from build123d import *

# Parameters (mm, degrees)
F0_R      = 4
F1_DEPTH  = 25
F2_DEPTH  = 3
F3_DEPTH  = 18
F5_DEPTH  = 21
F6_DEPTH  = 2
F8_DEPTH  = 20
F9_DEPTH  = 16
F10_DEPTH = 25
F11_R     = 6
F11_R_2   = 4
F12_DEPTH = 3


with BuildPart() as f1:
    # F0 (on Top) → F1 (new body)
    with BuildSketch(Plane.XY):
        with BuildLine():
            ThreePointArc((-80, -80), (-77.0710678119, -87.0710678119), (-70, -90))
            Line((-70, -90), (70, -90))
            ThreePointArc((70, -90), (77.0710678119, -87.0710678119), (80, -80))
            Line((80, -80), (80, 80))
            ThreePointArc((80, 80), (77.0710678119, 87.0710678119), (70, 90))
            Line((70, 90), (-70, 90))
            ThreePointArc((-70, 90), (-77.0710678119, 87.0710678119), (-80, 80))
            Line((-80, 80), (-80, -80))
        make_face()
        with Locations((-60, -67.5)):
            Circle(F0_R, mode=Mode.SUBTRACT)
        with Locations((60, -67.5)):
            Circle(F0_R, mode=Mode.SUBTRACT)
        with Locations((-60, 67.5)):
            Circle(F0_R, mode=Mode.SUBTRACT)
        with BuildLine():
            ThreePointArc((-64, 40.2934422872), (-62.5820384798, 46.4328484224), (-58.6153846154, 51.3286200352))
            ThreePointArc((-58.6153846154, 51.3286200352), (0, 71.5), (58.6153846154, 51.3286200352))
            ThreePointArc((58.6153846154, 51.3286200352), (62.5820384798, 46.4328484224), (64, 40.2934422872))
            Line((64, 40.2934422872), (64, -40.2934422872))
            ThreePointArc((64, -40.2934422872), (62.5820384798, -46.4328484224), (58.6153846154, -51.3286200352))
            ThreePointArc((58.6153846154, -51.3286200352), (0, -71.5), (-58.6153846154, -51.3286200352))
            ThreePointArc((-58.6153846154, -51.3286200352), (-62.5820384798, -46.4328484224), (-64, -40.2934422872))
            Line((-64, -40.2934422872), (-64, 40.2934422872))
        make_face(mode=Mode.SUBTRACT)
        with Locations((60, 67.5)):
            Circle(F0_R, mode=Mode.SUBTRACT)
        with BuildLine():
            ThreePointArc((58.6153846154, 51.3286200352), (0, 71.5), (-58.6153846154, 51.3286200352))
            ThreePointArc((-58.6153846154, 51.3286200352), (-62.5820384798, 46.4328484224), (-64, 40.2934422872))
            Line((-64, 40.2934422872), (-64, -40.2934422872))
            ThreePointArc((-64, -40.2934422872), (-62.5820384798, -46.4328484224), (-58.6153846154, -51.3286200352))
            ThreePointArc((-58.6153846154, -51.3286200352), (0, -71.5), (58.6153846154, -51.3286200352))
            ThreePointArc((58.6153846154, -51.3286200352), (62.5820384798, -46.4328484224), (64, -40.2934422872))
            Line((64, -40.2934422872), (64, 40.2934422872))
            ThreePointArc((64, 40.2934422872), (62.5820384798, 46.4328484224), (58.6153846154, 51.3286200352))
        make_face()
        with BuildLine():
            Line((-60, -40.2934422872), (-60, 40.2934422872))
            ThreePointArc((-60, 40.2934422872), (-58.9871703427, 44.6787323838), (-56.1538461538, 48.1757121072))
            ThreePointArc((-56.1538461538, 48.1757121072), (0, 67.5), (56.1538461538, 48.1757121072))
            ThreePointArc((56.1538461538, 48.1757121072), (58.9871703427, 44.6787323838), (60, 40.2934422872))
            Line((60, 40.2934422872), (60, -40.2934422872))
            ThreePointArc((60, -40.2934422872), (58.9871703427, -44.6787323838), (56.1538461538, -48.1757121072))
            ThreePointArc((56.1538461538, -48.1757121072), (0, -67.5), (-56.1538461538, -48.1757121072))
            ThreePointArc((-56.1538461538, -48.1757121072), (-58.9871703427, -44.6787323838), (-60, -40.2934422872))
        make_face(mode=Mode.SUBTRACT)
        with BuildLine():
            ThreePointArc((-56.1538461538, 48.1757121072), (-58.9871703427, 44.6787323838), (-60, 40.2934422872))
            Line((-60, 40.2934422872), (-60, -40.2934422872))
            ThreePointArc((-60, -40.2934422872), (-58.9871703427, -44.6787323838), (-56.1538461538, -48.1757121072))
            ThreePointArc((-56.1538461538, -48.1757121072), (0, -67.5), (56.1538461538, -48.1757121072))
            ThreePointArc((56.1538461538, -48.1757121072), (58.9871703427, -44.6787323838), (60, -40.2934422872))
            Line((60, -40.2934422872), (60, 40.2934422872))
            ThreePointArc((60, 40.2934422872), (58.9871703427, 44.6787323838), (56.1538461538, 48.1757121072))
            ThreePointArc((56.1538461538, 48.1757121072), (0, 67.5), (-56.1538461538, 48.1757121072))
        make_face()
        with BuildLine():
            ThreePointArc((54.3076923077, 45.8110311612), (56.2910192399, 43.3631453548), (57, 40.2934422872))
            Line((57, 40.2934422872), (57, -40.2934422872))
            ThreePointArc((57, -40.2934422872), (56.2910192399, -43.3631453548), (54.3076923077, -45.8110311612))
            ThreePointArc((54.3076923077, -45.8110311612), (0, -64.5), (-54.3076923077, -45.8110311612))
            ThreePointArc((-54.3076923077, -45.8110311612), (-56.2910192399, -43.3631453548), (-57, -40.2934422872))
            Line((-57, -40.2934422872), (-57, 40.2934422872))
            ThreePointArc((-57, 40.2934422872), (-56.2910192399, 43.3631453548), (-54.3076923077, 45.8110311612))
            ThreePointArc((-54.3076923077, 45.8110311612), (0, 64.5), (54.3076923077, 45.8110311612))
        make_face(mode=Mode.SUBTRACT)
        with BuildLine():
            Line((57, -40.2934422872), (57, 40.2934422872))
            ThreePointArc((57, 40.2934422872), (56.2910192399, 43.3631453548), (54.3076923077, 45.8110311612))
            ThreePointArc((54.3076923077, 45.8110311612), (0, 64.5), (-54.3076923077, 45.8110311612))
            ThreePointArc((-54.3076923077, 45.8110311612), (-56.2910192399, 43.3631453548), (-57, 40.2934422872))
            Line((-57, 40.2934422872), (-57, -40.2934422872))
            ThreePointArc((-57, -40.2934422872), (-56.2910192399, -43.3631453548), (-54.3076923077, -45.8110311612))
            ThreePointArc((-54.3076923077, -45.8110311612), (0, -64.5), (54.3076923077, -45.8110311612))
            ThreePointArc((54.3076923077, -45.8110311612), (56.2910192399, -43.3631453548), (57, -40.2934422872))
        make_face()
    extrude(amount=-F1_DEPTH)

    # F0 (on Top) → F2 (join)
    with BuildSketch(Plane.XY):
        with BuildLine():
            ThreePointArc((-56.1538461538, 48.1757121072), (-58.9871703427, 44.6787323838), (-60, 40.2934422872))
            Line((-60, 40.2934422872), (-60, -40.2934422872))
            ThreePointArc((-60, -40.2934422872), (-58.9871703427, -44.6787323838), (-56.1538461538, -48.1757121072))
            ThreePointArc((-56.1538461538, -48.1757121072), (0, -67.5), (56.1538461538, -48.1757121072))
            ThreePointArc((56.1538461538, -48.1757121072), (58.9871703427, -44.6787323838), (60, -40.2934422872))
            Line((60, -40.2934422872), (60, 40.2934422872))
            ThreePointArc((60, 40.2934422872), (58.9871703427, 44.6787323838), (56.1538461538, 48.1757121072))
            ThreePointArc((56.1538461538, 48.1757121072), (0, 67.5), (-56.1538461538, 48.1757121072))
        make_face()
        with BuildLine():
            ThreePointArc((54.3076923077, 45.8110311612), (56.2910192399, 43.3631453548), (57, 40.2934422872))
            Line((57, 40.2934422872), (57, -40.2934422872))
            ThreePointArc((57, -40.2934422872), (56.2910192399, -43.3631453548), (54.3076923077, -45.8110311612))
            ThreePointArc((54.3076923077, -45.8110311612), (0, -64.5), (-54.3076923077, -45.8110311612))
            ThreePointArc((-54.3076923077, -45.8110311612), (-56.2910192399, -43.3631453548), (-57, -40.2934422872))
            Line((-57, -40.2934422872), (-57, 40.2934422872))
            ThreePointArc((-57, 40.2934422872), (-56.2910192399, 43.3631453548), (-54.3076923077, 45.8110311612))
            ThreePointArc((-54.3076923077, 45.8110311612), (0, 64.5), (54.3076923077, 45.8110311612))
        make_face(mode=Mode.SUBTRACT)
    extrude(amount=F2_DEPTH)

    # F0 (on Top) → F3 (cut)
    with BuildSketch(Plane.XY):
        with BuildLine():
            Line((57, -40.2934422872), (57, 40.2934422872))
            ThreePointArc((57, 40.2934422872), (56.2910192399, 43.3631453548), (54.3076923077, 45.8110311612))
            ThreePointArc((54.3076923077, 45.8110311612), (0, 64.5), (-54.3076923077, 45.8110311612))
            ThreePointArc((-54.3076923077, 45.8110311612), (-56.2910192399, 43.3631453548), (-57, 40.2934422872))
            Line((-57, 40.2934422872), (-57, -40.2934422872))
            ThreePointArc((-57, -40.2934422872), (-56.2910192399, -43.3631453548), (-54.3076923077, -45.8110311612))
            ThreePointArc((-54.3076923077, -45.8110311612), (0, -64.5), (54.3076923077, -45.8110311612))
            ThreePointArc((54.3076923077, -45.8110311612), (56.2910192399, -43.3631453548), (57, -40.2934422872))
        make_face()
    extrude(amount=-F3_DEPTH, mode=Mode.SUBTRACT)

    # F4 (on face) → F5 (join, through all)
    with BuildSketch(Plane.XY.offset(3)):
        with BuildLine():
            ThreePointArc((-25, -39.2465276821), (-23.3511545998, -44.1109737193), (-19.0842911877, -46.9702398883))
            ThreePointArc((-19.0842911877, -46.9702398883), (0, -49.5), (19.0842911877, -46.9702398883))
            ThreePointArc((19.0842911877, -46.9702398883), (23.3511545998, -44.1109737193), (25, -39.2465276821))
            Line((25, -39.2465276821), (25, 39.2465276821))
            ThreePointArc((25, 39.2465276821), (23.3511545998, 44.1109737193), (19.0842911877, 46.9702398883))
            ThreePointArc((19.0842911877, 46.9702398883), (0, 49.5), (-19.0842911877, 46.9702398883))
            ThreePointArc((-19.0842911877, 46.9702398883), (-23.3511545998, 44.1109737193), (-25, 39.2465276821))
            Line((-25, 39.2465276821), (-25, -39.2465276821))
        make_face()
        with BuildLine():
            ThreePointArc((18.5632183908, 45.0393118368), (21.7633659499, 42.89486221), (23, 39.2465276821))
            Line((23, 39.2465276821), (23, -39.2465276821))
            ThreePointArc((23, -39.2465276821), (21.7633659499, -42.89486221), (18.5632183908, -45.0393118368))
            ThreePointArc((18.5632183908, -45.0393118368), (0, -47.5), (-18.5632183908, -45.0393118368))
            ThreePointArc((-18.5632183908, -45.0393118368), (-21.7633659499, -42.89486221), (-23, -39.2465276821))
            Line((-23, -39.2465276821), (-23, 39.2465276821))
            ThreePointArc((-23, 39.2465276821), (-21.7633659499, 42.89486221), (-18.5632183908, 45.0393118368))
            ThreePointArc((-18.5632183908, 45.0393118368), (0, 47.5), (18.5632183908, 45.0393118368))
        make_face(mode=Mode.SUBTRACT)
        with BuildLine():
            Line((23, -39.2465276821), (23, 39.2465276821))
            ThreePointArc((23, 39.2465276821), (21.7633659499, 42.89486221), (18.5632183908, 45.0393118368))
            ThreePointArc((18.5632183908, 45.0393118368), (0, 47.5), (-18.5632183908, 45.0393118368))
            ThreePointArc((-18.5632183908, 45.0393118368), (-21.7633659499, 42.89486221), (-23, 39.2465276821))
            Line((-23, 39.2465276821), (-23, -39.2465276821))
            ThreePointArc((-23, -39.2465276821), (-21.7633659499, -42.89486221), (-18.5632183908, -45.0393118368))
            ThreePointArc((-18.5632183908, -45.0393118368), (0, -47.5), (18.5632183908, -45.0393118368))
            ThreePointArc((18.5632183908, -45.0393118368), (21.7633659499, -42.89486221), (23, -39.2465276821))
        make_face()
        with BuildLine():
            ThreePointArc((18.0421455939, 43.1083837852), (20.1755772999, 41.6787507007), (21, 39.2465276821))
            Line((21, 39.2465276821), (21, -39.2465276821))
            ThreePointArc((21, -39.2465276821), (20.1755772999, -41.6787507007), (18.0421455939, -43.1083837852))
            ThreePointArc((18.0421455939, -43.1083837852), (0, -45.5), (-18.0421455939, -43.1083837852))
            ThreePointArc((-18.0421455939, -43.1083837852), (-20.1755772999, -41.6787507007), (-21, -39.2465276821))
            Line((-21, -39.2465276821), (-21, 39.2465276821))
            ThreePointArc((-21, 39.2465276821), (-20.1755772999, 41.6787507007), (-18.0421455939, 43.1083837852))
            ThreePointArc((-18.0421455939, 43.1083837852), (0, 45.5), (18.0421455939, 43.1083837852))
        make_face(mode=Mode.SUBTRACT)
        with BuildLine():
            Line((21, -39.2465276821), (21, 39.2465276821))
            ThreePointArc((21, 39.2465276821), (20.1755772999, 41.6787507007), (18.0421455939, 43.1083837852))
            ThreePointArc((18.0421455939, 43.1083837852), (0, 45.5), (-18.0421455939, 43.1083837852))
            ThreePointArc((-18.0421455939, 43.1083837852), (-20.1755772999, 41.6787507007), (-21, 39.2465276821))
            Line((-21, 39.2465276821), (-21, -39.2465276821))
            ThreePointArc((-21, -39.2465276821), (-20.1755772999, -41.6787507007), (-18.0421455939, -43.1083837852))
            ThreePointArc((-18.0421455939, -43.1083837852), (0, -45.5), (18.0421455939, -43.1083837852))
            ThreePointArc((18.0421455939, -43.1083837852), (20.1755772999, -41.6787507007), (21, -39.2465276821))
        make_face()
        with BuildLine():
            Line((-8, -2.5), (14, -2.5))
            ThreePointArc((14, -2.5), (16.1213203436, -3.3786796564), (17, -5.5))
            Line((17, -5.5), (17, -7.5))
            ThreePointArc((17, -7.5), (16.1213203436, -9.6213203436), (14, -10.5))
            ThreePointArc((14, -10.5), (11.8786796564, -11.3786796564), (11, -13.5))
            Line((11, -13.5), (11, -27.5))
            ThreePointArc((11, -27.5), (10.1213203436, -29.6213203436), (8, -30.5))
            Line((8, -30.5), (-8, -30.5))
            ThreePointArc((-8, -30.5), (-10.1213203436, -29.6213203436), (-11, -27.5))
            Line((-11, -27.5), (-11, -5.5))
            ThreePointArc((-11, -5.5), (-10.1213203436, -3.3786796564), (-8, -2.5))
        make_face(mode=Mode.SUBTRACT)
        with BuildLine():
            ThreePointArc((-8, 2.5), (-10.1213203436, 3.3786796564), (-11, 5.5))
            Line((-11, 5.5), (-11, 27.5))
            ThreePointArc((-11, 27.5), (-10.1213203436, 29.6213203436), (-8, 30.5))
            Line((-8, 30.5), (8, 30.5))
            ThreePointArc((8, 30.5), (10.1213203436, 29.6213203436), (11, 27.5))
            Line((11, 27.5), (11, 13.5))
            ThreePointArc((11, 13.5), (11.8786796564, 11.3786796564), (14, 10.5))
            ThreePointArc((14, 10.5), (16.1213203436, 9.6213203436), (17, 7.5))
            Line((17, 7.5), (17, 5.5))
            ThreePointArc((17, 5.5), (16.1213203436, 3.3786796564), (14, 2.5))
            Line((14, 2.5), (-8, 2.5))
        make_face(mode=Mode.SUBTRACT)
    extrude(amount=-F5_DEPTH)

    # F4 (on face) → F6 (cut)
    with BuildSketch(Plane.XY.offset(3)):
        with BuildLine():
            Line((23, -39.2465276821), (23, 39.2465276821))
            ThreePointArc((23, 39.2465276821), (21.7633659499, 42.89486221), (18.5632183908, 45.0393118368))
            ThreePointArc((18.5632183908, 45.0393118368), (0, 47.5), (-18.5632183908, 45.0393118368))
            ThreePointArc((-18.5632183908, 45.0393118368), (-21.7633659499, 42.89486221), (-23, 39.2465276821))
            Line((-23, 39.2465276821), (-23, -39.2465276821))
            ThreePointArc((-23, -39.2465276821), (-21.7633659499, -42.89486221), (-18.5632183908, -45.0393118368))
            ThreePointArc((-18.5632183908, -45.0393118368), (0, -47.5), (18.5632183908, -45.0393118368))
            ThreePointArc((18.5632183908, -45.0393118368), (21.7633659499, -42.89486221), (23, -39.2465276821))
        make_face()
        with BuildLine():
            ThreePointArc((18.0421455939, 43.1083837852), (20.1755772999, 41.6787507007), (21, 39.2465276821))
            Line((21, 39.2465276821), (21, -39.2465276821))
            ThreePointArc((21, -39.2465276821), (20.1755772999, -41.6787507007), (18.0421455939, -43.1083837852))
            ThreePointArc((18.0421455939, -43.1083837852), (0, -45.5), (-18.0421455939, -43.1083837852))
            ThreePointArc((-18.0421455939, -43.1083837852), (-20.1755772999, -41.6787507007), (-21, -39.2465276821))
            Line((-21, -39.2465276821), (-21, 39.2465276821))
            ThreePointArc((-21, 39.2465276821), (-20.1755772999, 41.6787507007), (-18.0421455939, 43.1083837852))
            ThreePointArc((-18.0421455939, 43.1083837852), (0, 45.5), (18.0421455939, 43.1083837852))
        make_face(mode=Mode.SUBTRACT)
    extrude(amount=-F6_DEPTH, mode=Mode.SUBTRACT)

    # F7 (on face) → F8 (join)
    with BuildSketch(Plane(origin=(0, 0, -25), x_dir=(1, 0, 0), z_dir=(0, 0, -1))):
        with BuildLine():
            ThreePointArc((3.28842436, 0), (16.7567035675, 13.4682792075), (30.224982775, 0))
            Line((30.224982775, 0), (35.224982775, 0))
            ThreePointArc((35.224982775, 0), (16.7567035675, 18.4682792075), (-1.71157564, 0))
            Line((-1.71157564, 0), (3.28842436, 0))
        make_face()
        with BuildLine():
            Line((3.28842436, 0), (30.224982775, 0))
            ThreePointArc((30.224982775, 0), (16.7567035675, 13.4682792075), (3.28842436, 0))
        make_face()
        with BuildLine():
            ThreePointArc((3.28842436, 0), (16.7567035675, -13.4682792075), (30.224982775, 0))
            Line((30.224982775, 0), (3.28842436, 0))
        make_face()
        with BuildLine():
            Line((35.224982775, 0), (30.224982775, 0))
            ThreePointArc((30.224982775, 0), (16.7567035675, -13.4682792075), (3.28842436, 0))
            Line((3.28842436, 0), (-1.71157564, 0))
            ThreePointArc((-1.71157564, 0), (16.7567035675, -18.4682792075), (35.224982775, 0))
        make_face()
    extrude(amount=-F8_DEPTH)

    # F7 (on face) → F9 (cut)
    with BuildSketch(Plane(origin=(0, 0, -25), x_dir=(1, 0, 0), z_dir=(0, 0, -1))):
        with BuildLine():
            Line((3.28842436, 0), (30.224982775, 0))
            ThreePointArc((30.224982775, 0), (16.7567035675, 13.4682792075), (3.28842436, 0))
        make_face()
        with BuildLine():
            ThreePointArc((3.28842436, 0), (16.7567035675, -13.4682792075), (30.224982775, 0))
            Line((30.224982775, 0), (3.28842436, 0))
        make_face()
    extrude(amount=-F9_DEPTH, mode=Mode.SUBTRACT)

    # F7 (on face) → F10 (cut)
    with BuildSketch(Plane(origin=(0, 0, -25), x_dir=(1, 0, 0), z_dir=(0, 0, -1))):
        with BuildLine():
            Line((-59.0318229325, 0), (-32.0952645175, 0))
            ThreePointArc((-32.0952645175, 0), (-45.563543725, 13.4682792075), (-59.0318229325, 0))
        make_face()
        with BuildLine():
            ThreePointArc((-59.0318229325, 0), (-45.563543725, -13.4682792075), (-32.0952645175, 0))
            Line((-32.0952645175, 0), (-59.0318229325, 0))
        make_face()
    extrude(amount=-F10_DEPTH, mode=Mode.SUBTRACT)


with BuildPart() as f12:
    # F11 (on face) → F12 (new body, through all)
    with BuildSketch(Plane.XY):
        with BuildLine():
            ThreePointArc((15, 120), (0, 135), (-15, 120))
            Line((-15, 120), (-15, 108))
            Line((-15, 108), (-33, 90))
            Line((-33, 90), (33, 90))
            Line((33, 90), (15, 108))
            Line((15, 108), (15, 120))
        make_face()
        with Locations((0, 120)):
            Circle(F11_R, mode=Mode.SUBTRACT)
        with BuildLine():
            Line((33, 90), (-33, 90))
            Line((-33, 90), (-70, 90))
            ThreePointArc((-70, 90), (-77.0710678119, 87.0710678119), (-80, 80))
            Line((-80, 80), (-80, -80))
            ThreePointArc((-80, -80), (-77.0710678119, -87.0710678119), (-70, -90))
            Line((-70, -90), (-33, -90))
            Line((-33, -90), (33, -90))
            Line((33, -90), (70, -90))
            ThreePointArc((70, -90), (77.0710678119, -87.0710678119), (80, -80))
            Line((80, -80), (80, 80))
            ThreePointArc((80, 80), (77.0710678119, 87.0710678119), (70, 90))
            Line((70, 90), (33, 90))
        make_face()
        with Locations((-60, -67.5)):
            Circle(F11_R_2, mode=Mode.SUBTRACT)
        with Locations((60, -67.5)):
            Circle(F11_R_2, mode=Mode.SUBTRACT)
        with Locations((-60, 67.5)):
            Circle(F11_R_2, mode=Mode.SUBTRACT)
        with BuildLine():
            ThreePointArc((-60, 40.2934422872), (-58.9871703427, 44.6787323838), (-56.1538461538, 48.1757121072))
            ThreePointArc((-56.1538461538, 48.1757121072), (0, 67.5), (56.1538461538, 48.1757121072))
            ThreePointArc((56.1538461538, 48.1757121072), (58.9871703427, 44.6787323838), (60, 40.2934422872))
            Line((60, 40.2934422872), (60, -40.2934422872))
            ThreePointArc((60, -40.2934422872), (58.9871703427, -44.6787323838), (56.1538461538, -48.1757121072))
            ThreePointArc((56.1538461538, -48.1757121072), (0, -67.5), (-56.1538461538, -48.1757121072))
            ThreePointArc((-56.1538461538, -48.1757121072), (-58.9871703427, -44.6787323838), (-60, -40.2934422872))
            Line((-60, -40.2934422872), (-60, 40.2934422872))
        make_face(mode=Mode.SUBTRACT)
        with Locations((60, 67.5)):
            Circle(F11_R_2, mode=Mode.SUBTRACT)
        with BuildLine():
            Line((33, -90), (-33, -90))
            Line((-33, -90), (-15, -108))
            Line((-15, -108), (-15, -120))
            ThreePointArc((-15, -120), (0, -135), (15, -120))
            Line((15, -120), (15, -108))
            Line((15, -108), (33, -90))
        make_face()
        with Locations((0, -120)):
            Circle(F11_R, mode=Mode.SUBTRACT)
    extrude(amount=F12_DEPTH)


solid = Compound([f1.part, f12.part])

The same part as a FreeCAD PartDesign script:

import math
import FreeCAD as App
import Part
import Sketcher
from FreeCAD import Vector
Q = App.Units.Quantity

doc = App.newDocument("Part")
body = doc.addObject("PartDesign::Body", "Body")

sketch1 = body.newObject("Sketcher::SketchObject", "Sketch")
sketch1.AttachmentSupport = (doc.getObject("XY_Plane"), [""])
sketch1.MapMode = "FlatFace"
sketch1.addGeometry(Part.ArcOfCircle(Part.Circle(Vector(-70, -80, 0), Vector(0, 0, 1), 10), math.radians(180), math.radians(270)), False)
sketch1.addGeometry(Part.LineSegment(Vector(-70, -90, 0), Vector(70, -90, 0)), False)
sketch1.addGeometry(Part.ArcOfCircle(Part.Circle(Vector(70, -80, 0), Vector(0, 0, 1), 10), math.radians(-90), math.radians(0)), False)
sketch1.addGeometry(Part.LineSegment(Vector(80, -80, 0), Vector(80, 80, 0)), False)
sketch1.addGeometry(Part.ArcOfCircle(Part.Circle(Vector(70, 80, 0), Vector(0, 0, 1), 10), math.radians(0), math.radians(90)), False)
sketch1.addGeometry(Part.LineSegment(Vector(70, 90, 0), Vector(-70, 90, 0)), False)
sketch1.addGeometry(Part.ArcOfCircle(Part.Circle(Vector(-70, 80, 0), Vector(0, 0, 1), 10), math.radians(90), math.radians(180)), False)
sketch1.addGeometry(Part.LineSegment(Vector(-80, 80, 0), Vector(-80, -80, 0)), False)
sketch1.addGeometry(Part.Circle(Vector(-60, -67.5, 0), Vector(0, 0, 1), 4), False)
sketch1.addGeometry(Part.Circle(Vector(60, -67.5, 0), Vector(0, 0, 1), 4), False)
sketch1.addGeometry(Part.Circle(Vector(-60, 67.5, 0), Vector(0, 0, 1), 4), False)
sketch1.addGeometry(Part.Circle(Vector(60, 67.5, 0), Vector(0, 0, 1), 4), False)
sketch1.addConstraint(Sketcher.Constraint("Tangent", 0, 2, 1, 1))
sketch1.addConstraint(Sketcher.Constraint("Tangent", 1, 2, 2, 1))
sketch1.addConstraint(Sketcher.Constraint("Tangent", 2, 2, 3, 1))
sketch1.addConstraint(Sketcher.Constraint("Tangent", 3, 2, 4, 1))
sketch1.addConstraint(Sketcher.Constraint("Tangent", 4, 2, 5, 1))
sketch1.addConstraint(Sketcher.Constraint("Tangent", 5, 2, 6, 1))
sketch1.addConstraint(Sketcher.Constraint("Tangent", 6, 2, 7, 1))
sketch1.addConstraint(Sketcher.Constraint("Tangent", 7, 2, 0, 1))
sketch1.addConstraint(Sketcher.Constraint("Horizontal", 1))
sketch1.addConstraint(Sketcher.Constraint("Vertical", 3))
sketch1.addConstraint(Sketcher.Constraint("Horizontal", 5))
sketch1.addConstraint(Sketcher.Constraint("Vertical", 7))
sketch1.addConstraint(Sketcher.Constraint("Equal", 0, 2))
sketch1.addConstraint(Sketcher.Constraint("Equal", 2, 4))
sketch1.addConstraint(Sketcher.Constraint("Equal", 4, 6))
sketch1.addConstraint(Sketcher.Constraint("Equal", 8, 9))
sketch1.addConstraint(Sketcher.Constraint("Equal", 9, 10))
sketch1.addConstraint(Sketcher.Constraint("Equal", 10, 11))
sketch1.addConstraint(Sketcher.Constraint("Symmetric", 0, 3, 4, 3, -1, 1))
sketch1.addConstraint(Sketcher.Constraint("Symmetric", 9, 3, 10, 3, -1, 1))
sketch1.addConstraint(Sketcher.Constraint("Symmetric", 8, 3, 11, 3, -1, 1))
sketch1.addConstraint(Sketcher.Constraint("Symmetric", 8, 3, 9, 3, -2))
sketch1.addConstraint(Sketcher.Constraint("Diameter", 8, Q("8 mm")))
sketch1.addConstraint(Sketcher.Constraint("Radius", 0, Q("10 mm")))
sketch1.addConstraint(Sketcher.Constraint("DistanceX", 1, 1, 1, 2, Q("140 mm")))
sketch1.addConstraint(Sketcher.Constraint("DistanceY", 3, 1, 3, 2, Q("160 mm")))
sketch1.addConstraint(Sketcher.Constraint("DistanceX", 8, 3, -1, 1, Q("60 mm")))
sketch1.addConstraint(Sketcher.Constraint("DistanceY", 8, 3, 10, 3, Q("135 mm")))
pad1 = body.newObject("PartDesign::Pad", "Pad")
pad1.Profile = sketch1
pad1.Length = 25
pad1.Reversed = True

sketch2 = body.newObject("Sketcher::SketchObject", "Sketch001")
sketch2.AttachmentSupport = (doc.getObject("XY_Plane"), [""])
sketch2.MapMode = "FlatFace"
sketch2.addGeometry(Part.ArcOfCircle(Part.Circle(Vector(-50, 40, 0), Vector(0, 0, 1), 10), math.radians(128), math.radians(180)), False)
sketch2.addGeometry(Part.LineSegment(Vector(-60, 40, 0), Vector(-60, -40, 0)), False)
sketch2.addGeometry(Part.ArcOfCircle(Part.Circle(Vector(-50, -40, 0), Vector(0, 0, 1), 10), math.radians(180), math.radians(232)), False)
sketch2.addGeometry(Part.ArcOfCircle(Part.Circle(Vector(0, 24, 0), Vector(0, 0, 1), 91), math.radians(-128), math.radians(-52)), False)
sketch2.addGeometry(Part.ArcOfCircle(Part.Circle(Vector(50, -40, 0), Vector(0, 0, 1), 10), math.radians(-52), math.radians(0)), False)
sketch2.addGeometry(Part.LineSegment(Vector(60, -40, 0), Vector(60, 40, 0)), False)
sketch2.addGeometry(Part.ArcOfCircle(Part.Circle(Vector(50, 40, 0), Vector(0, 0, 1), 10), math.radians(0), math.radians(52)), False)
sketch2.addGeometry(Part.ArcOfCircle(Part.Circle(Vector(0, -24, 0), Vector(0, 0, 1), 91), math.radians(52), math.radians(128)), False)
sketch2.addGeometry(Part.ArcOfCircle(Part.Circle(Vector(0, -24, 0), Vector(0, 0, 1), 88), math.radians(52), math.radians(128)), False)
sketch2.addGeometry(Part.ArcOfCircle(Part.Circle(Vector(50, 40, 0), Vector(0, 0, 1), 7), math.radians(0), math.radians(52)), False)
sketch2.addGeometry(Part.LineSegment(Vector(57, 40, 0), Vector(57, -40, 0)), False)
sketch2.addGeometry(Part.ArcOfCircle(Part.Circle(Vector(50, -40, 0), Vector(0, 0, 1), 7), math.radians(-52), math.radians(0)), False)
sketch2.addGeometry(Part.ArcOfCircle(Part.Circle(Vector(0, 24, 0), Vector(0, 0, 1), 88), math.radians(-128), math.radians(-52)), False)
sketch2.addGeometry(Part.ArcOfCircle(Part.Circle(Vector(-50, -40, 0), Vector(0, 0, 1), 7), math.radians(180), math.radians(232)), False)
sketch2.addGeometry(Part.LineSegment(Vector(-57, -40, 0), Vector(-57, 40, 0)), False)
sketch2.addGeometry(Part.ArcOfCircle(Part.Circle(Vector(-50, 40, 0), Vector(0, 0, 1), 7), math.radians(128), math.radians(180)), False)
sketch2.addConstraint(Sketcher.Constraint("Tangent", 0, 2, 1, 1))
sketch2.addConstraint(Sketcher.Constraint("Tangent", 1, 2, 2, 1))
sketch2.addConstraint(Sketcher.Constraint("Tangent", 2, 2, 3, 1))
sketch2.addConstraint(Sketcher.Constraint("Tangent", 3, 2, 4, 1))
sketch2.addConstraint(Sketcher.Constraint("Tangent", 4, 2, 5, 1))
sketch2.addConstraint(Sketcher.Constraint("Tangent", 5, 2, 6, 1))
sketch2.addConstraint(Sketcher.Constraint("Tangent", 6, 2, 7, 1))
sketch2.addConstraint(Sketcher.Constraint("Tangent", 7, 2, 0, 1))
sketch2.addConstraint(Sketcher.Constraint("Tangent", 8, 1, 9, 2))
sketch2.addConstraint(Sketcher.Constraint("Tangent", 9, 1, 10, 1))
sketch2.addConstraint(Sketcher.Constraint("Tangent", 10, 2, 11, 2))
sketch2.addConstraint(Sketcher.Constraint("Tangent", 11, 1, 12, 2))
sketch2.addConstraint(Sketcher.Constraint("Tangent", 12, 1, 13, 2))
sketch2.addConstraint(Sketcher.Constraint("Tangent", 13, 1, 14, 1))
sketch2.addConstraint(Sketcher.Constraint("Tangent", 14, 2, 15, 2))
sketch2.addConstraint(Sketcher.Constraint("Tangent", 15, 1, 8, 2))
sketch2.addConstraint(Sketcher.Constraint("Vertical", 1))
sketch2.addConstraint(Sketcher.Constraint("Vertical", 5))
sketch2.addConstraint(Sketcher.Constraint("Vertical", 10))
sketch2.addConstraint(Sketcher.Constraint("Vertical", 14))
sketch2.addConstraint(Sketcher.Constraint("Coincident", 8, 3, 7, 3))
sketch2.addConstraint(Sketcher.Constraint("Coincident", 9, 3, 6, 3))
sketch2.addConstraint(Sketcher.Constraint("Coincident", 11, 3, 4, 3))
sketch2.addConstraint(Sketcher.Constraint("Coincident", 12, 3, 3, 3))
sketch2.addConstraint(Sketcher.Constraint("Coincident", 13, 3, 2, 3))
sketch2.addConstraint(Sketcher.Constraint("Equal", 0, 2))
sketch2.addConstraint(Sketcher.Constraint("Equal", 2, 4))
sketch2.addConstraint(Sketcher.Constraint("Equal", 4, 6))
sketch2.addConstraint(Sketcher.Constraint("Equal", 3, 7))
sketch2.addConstraint(Sketcher.Constraint("Equal", 13, 15))
sketch2.addConstraint(Sketcher.Constraint("Symmetric", 0, 3, 4, 3, -1, 1))
sketch2.addConstraint(Sketcher.Constraint("Symmetric", 3, 3, 7, 3, -1))
sketch2.addConstraint(Sketcher.Constraint("Radius", 0, Q("10 mm")))
sketch2.addConstraint(Sketcher.Constraint("Radius", 9, Q("7 mm")))
sketch2.addConstraint(Sketcher.Constraint("Radius", 3, Q("91.25 mm")))
sketch2.addConstraint(Sketcher.Constraint("DistanceX", 0, 3, -1, 1, Q("50 mm")))
sketch2.addConstraint(Sketcher.Constraint("DistanceY", 7, 3, 3, 3, Q("47.5 mm")))
pad2 = body.newObject("PartDesign::Pad", "Pad001")
pad2.Profile = sketch2
pad2.Length = 3

sketch3 = body.newObject("Sketcher::SketchObject", "Sketch002")
sketch3.AttachmentSupport = (doc.getObject("XY_Plane"), [""])
sketch3.MapMode = "FlatFace"
sketch3.addGeometry(Part.LineSegment(Vector(57, -40, 0), Vector(57, 40, 0)), False)
sketch3.addGeometry(Part.ArcOfCircle(Part.Circle(Vector(50, 40, 0), Vector(0, 0, 1), 7), math.radians(0), math.radians(52)), False)
sketch3.addGeometry(Part.ArcOfCircle(Part.Circle(Vector(0, -24, 0), Vector(0, 0, 1), 88), math.radians(52), math.radians(128)), False)
sketch3.addGeometry(Part.ArcOfCircle(Part.Circle(Vector(-50, 40, 0), Vector(0, 0, 1), 7), math.radians(128), math.radians(180)), False)
sketch3.addGeometry(Part.LineSegment(Vector(-57, 40, 0), Vector(-57, -40, 0)), False)
sketch3.addGeometry(Part.ArcOfCircle(Part.Circle(Vector(-50, -40, 0), Vector(0, 0, 1), 7), math.radians(180), math.radians(232)), False)
sketch3.addGeometry(Part.ArcOfCircle(Part.Circle(Vector(0, 24, 0), Vector(0, 0, 1), 88), math.radians(-128), math.radians(-52)), False)
sketch3.addGeometry(Part.ArcOfCircle(Part.Circle(Vector(50, -40, 0), Vector(0, 0, 1), 7), math.radians(-52), math.radians(0)), False)
sketch3.addConstraint(Sketcher.Constraint("Tangent", 0, 2, 1, 1))
sketch3.addConstraint(Sketcher.Constraint("Tangent", 1, 2, 2, 1))
sketch3.addConstraint(Sketcher.Constraint("Tangent", 2, 2, 3, 1))
sketch3.addConstraint(Sketcher.Constraint("Tangent", 3, 2, 4, 1))
sketch3.addConstraint(Sketcher.Constraint("Tangent", 4, 2, 5, 1))
sketch3.addConstraint(Sketcher.Constraint("Tangent", 5, 2, 6, 1))
sketch3.addConstraint(Sketcher.Constraint("Tangent", 6, 2, 7, 1))
sketch3.addConstraint(Sketcher.Constraint("Tangent", 7, 2, 0, 1))
sketch3.addConstraint(Sketcher.Constraint("Vertical", 0))
sketch3.addConstraint(Sketcher.Constraint("Vertical", 4))
sketch3.addConstraint(Sketcher.Constraint("Equal", 1, 3))
sketch3.addConstraint(Sketcher.Constraint("Equal", 3, 5))
sketch3.addConstraint(Sketcher.Constraint("Equal", 2, 6))
sketch3.addConstraint(Sketcher.Constraint("Equal", 5, 7))
sketch3.addConstraint(Sketcher.Constraint("Symmetric", 1, 3, 5, 3, -1, 1))
sketch3.addConstraint(Sketcher.Constraint("Symmetric", 2, 3, 6, 3, -1))
sketch3.addConstraint(Sketcher.Constraint("Radius", 1, Q("7 mm")))
sketch3.addConstraint(Sketcher.Constraint("Radius", 2, Q("88.25 mm")))
sketch3.addConstraint(Sketcher.Constraint("DistanceX", -1, 1, 1, 3, Q("50 mm")))
sketch3.addConstraint(Sketcher.Constraint("DistanceY", 2, 3, 6, 3, Q("47.5 mm")))
pocket1 = body.newObject("PartDesign::Pocket", "Pocket")
pocket1.Profile = sketch3
pocket1.Length = 18

sketch4 = body.newObject("Sketcher::SketchObject", "Sketch003")
sketch4.AttachmentSupport = (doc.getObject("XY_Plane"), [""])
sketch4.MapMode = "FlatFace"
sketch4.AttachmentOffset = App.Placement(Vector(0, 0, 3), App.Rotation())
sketch4.addGeometry(Part.ArcOfCircle(Part.Circle(Vector(-17, -39.2, 0), Vector(0, 0, 1), 8), math.radians(180), math.radians(255)), False)
sketch4.addGeometry(Part.ArcOfCircle(Part.Circle(Vector(0, 23.7, 0), Vector(0, 0, 1), 73.2), math.radians(-105), math.radians(-75)), False)
sketch4.addGeometry(Part.ArcOfCircle(Part.Circle(Vector(17, -39.2, 0), Vector(0, 0, 1), 8), math.radians(-75), math.radians(0)), False)
sketch4.addGeometry(Part.LineSegment(Vector(25, -39.2, 0), Vector(25, 39.2, 0)), False)
sketch4.addGeometry(Part.ArcOfCircle(Part.Circle(Vector(17, 39.2, 0), Vector(0, 0, 1), 8), math.radians(0), math.radians(75)), False)
sketch4.addGeometry(Part.ArcOfCircle(Part.Circle(Vector(0, -23.7, 0), Vector(0, 0, 1), 73.2), math.radians(75), math.radians(105)), False)
sketch4.addGeometry(Part.ArcOfCircle(Part.Circle(Vector(-17, 39.2, 0), Vector(0, 0, 1), 8), math.radians(105), math.radians(180)), False)
sketch4.addGeometry(Part.LineSegment(Vector(-25, 39.2, 0), Vector(-25, -39.2, 0)), False)
sketch4.addGeometry(Part.ArcOfCircle(Part.Circle(Vector(-8, -5.5, 0), Vector(0, 0, 1), 3), math.radians(90), math.radians(180)), False)
sketch4.addGeometry(Part.LineSegment(Vector(-8, -2.5, 0), Vector(14, -2.5, 0)), False)
sketch4.addGeometry(Part.ArcOfCircle(Part.Circle(Vector(14, -5.5, 0), Vector(0, 0, 1), 3), math.radians(0), math.radians(90)), False)
sketch4.addGeometry(Part.LineSegment(Vector(17, -5.5, 0), Vector(17, -7.5, 0)), False)
sketch4.addGeometry(Part.ArcOfCircle(Part.Circle(Vector(14, -7.5, 0), Vector(0, 0, 1), 3), math.radians(-90), math.radians(0)), False)
sketch4.addGeometry(Part.ArcOfCircle(Part.Circle(Vector(14, -13.5, 0), Vector(0, 0, 1), 3), math.radians(90), math.radians(180)), False)
sketch4.addGeometry(Part.LineSegment(Vector(11, -13.5, 0), Vector(11, -27.5, 0)), False)
sketch4.addGeometry(Part.ArcOfCircle(Part.Circle(Vector(8, -27.5, 0), Vector(0, 0, 1), 3), math.radians(-90), math.radians(0)), False)
sketch4.addGeometry(Part.LineSegment(Vector(8, -30.5, 0), Vector(-8, -30.5, 0)), False)
sketch4.addGeometry(Part.ArcOfCircle(Part.Circle(Vector(-8, -27.5, 0), Vector(0, 0, 1), 3), math.radians(180), math.radians(270)), False)
sketch4.addGeometry(Part.LineSegment(Vector(-11, -27.5, 0), Vector(-11, -5.5, 0)), False)
sketch4.addGeometry(Part.LineSegment(Vector(14, 2.5, 0), Vector(-8, 2.5, 0)), False)
sketch4.addGeometry(Part.ArcOfCircle(Part.Circle(Vector(-8, 5.5, 0), Vector(0, 0, 1), 3), math.radians(180), math.radians(270)), False)
sketch4.addGeometry(Part.LineSegment(Vector(-11, 5.5, 0), Vector(-11, 27.5, 0)), False)
sketch4.addGeometry(Part.ArcOfCircle(Part.Circle(Vector(-8, 27.5, 0), Vector(0, 0, 1), 3), math.radians(90), math.radians(180)), False)
sketch4.addGeometry(Part.LineSegment(Vector(-8, 30.5, 0), Vector(8, 30.5, 0)), False)
sketch4.addGeometry(Part.ArcOfCircle(Part.Circle(Vector(8, 27.5, 0), Vector(0, 0, 1), 3), math.radians(0), math.radians(90)), False)
sketch4.addGeometry(Part.LineSegment(Vector(11, 27.5, 0), Vector(11, 13.5, 0)), False)
sketch4.addGeometry(Part.ArcOfCircle(Part.Circle(Vector(14, 13.5, 0), Vector(0, 0, 1), 3), math.radians(180), math.radians(270)), False)
sketch4.addGeometry(Part.ArcOfCircle(Part.Circle(Vector(14, 7.5, 0), Vector(0, 0, 1), 3), math.radians(0), math.radians(90)), False)
sketch4.addGeometry(Part.LineSegment(Vector(17, 7.5, 0), Vector(17, 5.5, 0)), False)
sketch4.addGeometry(Part.ArcOfCircle(Part.Circle(Vector(14, 5.5, 0), Vector(0, 0, 1), 3), math.radians(-90), math.radians(0)), False)
sketch4.addConstraint(Sketcher.Constraint("Tangent", 0, 2, 1, 1))
sketch4.addConstraint(Sketcher.Constraint("Tangent", 1, 2, 2, 1))
sketch4.addConstraint(Sketcher.Constraint("Tangent", 2, 2, 3, 1))
sketch4.addConstraint(Sketcher.Constraint("Tangent", 3, 2, 4, 1))
sketch4.addConstraint(Sketcher.Constraint("Tangent", 4, 2, 5, 1))
sketch4.addConstraint(Sketcher.Constraint("Tangent", 5, 2, 6, 1))
sketch4.addConstraint(Sketcher.Constraint("Tangent", 6, 2, 7, 1))
sketch4.addConstraint(Sketcher.Constraint("Tangent", 7, 2, 0, 1))
sketch4.addConstraint(Sketcher.Constraint("Tangent", 8, 1, 9, 1))
sketch4.addConstraint(Sketcher.Constraint("Tangent", 9, 2, 10, 2))
sketch4.addConstraint(Sketcher.Constraint("Tangent", 10, 1, 11, 1))
sketch4.addConstraint(Sketcher.Constraint("Tangent", 11, 2, 12, 2))
sketch4.addConstraint(Sketcher.Constraint("Tangent", 12, 1, 13, 1))
sketch4.addConstraint(Sketcher.Constraint("Tangent", 13, 2, 14, 1))
sketch4.addConstraint(Sketcher.Constraint("Tangent", 14, 2, 15, 2))
sketch4.addConstraint(Sketcher.Constraint("Tangent", 15, 1, 16, 1))
sketch4.addConstraint(Sketcher.Constraint("Tangent", 16, 2, 17, 2))
sketch4.addConstraint(Sketcher.Constraint("Tangent", 17, 1, 18, 1))
sketch4.addConstraint(Sketcher.Constraint("Tangent", 18, 2, 8, 2))
sketch4.addConstraint(Sketcher.Constraint("Tangent", 19, 2, 20, 2))
sketch4.addConstraint(Sketcher.Constraint("Tangent", 20, 1, 21, 1))
sketch4.addConstraint(Sketcher.Constraint("Tangent", 21, 2, 22, 2))
sketch4.addConstraint(Sketcher.Constraint("Tangent", 22, 1, 23, 1))
sketch4.addConstraint(Sketcher.Constraint("Tangent", 23, 2, 24, 2))
sketch4.addConstraint(Sketcher.Constraint("Tangent", 24, 1, 25, 1))
sketch4.addConstraint(Sketcher.Constraint("Tangent", 25, 2, 26, 1))
sketch4.addConstraint(Sketcher.Constraint("Tangent", 26, 2, 27, 2))
sketch4.addConstraint(Sketcher.Constraint("Tangent", 27, 1, 28, 1))
sketch4.addConstraint(Sketcher.Constraint("Tangent", 28, 2, 29, 2))
sketch4.addConstraint(Sketcher.Constraint("Tangent", 29, 1, 19, 1))
sketch4.addConstraint(Sketcher.Constraint("Vertical", 3))
sketch4.addConstraint(Sketcher.Constraint("Vertical", 7))
sketch4.addConstraint(Sketcher.Constraint("Horizontal", 9))
sketch4.addConstraint(Sketcher.Constraint("Vertical", 11))
sketch4.addConstraint(Sketcher.Constraint("Vertical", 14))
sketch4.addConstraint(Sketcher.Constraint("Horizontal", 16))
sketch4.addConstraint(Sketcher.Constraint("Vertical", 18))
sketch4.addConstraint(Sketcher.Constraint("Horizontal", 19))
sketch4.addConstraint(Sketcher.Constraint("Vertical", 21))
sketch4.addConstraint(Sketcher.Constraint("Horizontal", 23))
sketch4.addConstraint(Sketcher.Constraint("Vertical", 25))
sketch4.addConstraint(Sketcher.Constraint("Vertical", 28))
sketch4.addConstraint(Sketcher.Constraint("Equal", 0, 2))
sketch4.addConstraint(Sketcher.Constraint("Equal", 2, 4))
sketch4.addConstraint(Sketcher.Constraint("Equal", 1, 5))
sketch4.addConstraint(Sketcher.Constraint("Equal", 4, 6))
sketch4.addConstraint(Sketcher.Constraint("Equal", 8, 10))
sketch4.addConstraint(Sketcher.Constraint("Equal", 10, 12))
sketch4.addConstraint(Sketcher.Constraint("Equal", 12, 13))
sketch4.addConstraint(Sketcher.Constraint("Equal", 13, 15))
sketch4.addConstraint(Sketcher.Constraint("Equal", 15, 17))
sketch4.addConstraint(Sketcher.Constraint("Equal", 17, 20))
sketch4.addConstraint(Sketcher.Constraint("Equal", 20, 22))
sketch4.addConstraint(Sketcher.Constraint("Equal", 22, 24))
sketch4.addConstraint(Sketcher.Constraint("Equal", 24, 26))
sketch4.addConstraint(Sketcher.Constraint("Equal", 26, 27))
sketch4.addConstraint(Sketcher.Constraint("Equal", 27, 29))
sketch4.addConstraint(Sketcher.Constraint("Symmetric", 0, 3, 4, 3, -1, 1))
sketch4.addConstraint(Sketcher.Constraint("Symmetric", 15, 3, 22, 3, -1, 1))
sketch4.addConstraint(Sketcher.Constraint("Symmetric", 1, 3, 5, 3, -1))
sketch4.addConstraint(Sketcher.Constraint("Symmetric", 8, 3, 20, 3, -1))
sketch4.addConstraint(Sketcher.Constraint("Symmetric", 13, 3, 26, 3, -1))
sketch4.addConstraint(Sketcher.Constraint("Vertical", 12, 3, 13, 3))
sketch4.addConstraint(Sketcher.Constraint("Vertical", 26, 3, 27, 3))
sketch4.addConstraint(Sketcher.Constraint("Vertical", 4, 3, 10, 1))
sketch4.addConstraint(Sketcher.Constraint("Equal", 19, 18))
sketch4.addConstraint(Sketcher.Constraint("Radius", 0, Q("8 mm")))
sketch4.addConstraint(Sketcher.Constraint("Radius", 8, Q("3 mm")))
sketch4.addConstraint(Sketcher.Constraint("DistanceX", 9, 1, 9, 2, Q("22 mm")))
sketch4.addConstraint(Sketcher.Constraint("DistanceY", 11, 2, 11, 1, Q("2 mm")))
sketch4.addConstraint(Sketcher.Constraint("Radius", 1, Q("73.25 mm")))
sketch4.addConstraint(Sketcher.Constraint("DistanceY", 8, 3, 20, 3, Q("11 mm")))
sketch4.addConstraint(Sketcher.Constraint("DistanceY", 5, 3, 1, 3, Q("47.5 mm")))
pad3 = body.newObject("PartDesign::Pad", "Pad002")
pad3.Profile = sketch4
pad3.Type = "UpToLast"
pad3.Reversed = True

sketch5 = body.newObject("Sketcher::SketchObject", "Sketch004")
sketch5.AttachmentSupport = (doc.getObject("XY_Plane"), [""])
sketch5.MapMode = "FlatFace"
sketch5.AttachmentOffset = App.Placement(Vector(0, 0, 3), App.Rotation())
sketch5.addGeometry(Part.LineSegment(Vector(23, -39.2, 0), Vector(23, 39.2, 0)), False)
sketch5.addGeometry(Part.ArcOfCircle(Part.Circle(Vector(17, 39.2, 0), Vector(0, 0, 1), 6), math.radians(0), math.radians(75)), False)
sketch5.addGeometry(Part.ArcOfCircle(Part.Circle(Vector(0, -23.8, 0), Vector(0, 0, 1), 71.3), math.radians(75), math.radians(105)), False)
sketch5.addGeometry(Part.ArcOfCircle(Part.Circle(Vector(-17, 39.2, 0), Vector(0, 0, 1), 6), math.radians(105), math.radians(180)), False)
sketch5.addGeometry(Part.LineSegment(Vector(-23, 39.2, 0), Vector(-23, -39.2, 0)), False)
sketch5.addGeometry(Part.ArcOfCircle(Part.Circle(Vector(-17, -39.2, 0), Vector(0, 0, 1), 6), math.radians(180), math.radians(255)), False)
sketch5.addGeometry(Part.ArcOfCircle(Part.Circle(Vector(0, 23.8, 0), Vector(0, 0, 1), 71.3), math.radians(-105), math.radians(-75)), False)
sketch5.addGeometry(Part.ArcOfCircle(Part.Circle(Vector(17, -39.2, 0), Vector(0, 0, 1), 6), math.radians(-75), math.radians(0)), False)
sketch5.addGeometry(Part.ArcOfCircle(Part.Circle(Vector(0, -23.8, 0), Vector(0, 0, 1), 69.2), math.radians(75), math.radians(105)), False)
sketch5.addGeometry(Part.ArcOfCircle(Part.Circle(Vector(17, 39.2, 0), Vector(0, 0, 1), 4), math.radians(0), math.radians(75)), False)
sketch5.addGeometry(Part.LineSegment(Vector(21, 39.2, 0), Vector(21, -39.2, 0)), False)
sketch5.addGeometry(Part.ArcOfCircle(Part.Circle(Vector(17, -39.2, 0), Vector(0, 0, 1), 4), math.radians(-75), math.radians(0)), False)
sketch5.addGeometry(Part.ArcOfCircle(Part.Circle(Vector(0, 23.8, 0), Vector(0, 0, 1), 69.2), math.radians(-105), math.radians(-75)), False)
sketch5.addGeometry(Part.ArcOfCircle(Part.Circle(Vector(-17, -39.2, 0), Vector(0, 0, 1), 4), math.radians(180), math.radians(255)), False)
sketch5.addGeometry(Part.LineSegment(Vector(-21, -39.2, 0), Vector(-21, 39.2, 0)), False)
sketch5.addGeometry(Part.ArcOfCircle(Part.Circle(Vector(-17, 39.2, 0), Vector(0, 0, 1), 4), math.radians(105), math.radians(180)), False)
sketch5.addConstraint(Sketcher.Constraint("Tangent", 0, 2, 1, 1))
sketch5.addConstraint(Sketcher.Constraint("Tangent", 1, 2, 2, 1))
sketch5.addConstraint(Sketcher.Constraint("Tangent", 2, 2, 3, 1))
sketch5.addConstraint(Sketcher.Constraint("Tangent", 3, 2, 4, 1))
sketch5.addConstraint(Sketcher.Constraint("Tangent", 4, 2, 5, 1))
sketch5.addConstraint(Sketcher.Constraint("Tangent", 5, 2, 6, 1))
sketch5.addConstraint(Sketcher.Constraint("Tangent", 6, 2, 7, 1))
sketch5.addConstraint(Sketcher.Constraint("Tangent", 7, 2, 0, 1))
sketch5.addConstraint(Sketcher.Constraint("Tangent", 8, 1, 9, 2))
sketch5.addConstraint(Sketcher.Constraint("Tangent", 9, 1, 10, 1))
sketch5.addConstraint(Sketcher.Constraint("Tangent", 10, 2, 11, 2))
sketch5.addConstraint(Sketcher.Constraint("Tangent", 11, 1, 12, 2))
sketch5.addConstraint(Sketcher.Constraint("Tangent", 12, 1, 13, 2))
sketch5.addConstraint(Sketcher.Constraint("Tangent", 13, 1, 14, 1))
sketch5.addConstraint(Sketcher.Constraint("Tangent", 14, 2, 15, 2))
sketch5.addConstraint(Sketcher.Constraint("Tangent", 15, 1, 8, 2))
sketch5.addConstraint(Sketcher.Constraint("Vertical", 0))
sketch5.addConstraint(Sketcher.Constraint("Vertical", 4))
sketch5.addConstraint(Sketcher.Constraint("Vertical", 10))
sketch5.addConstraint(Sketcher.Constraint("Vertical", 14))
sketch5.addConstraint(Sketcher.Constraint("Coincident", 8, 3, 2, 3))
sketch5.addConstraint(Sketcher.Constraint("Coincident", 9, 3, 1, 3))
sketch5.addConstraint(Sketcher.Constraint("Coincident", 11, 3, 7, 3))
sketch5.addConstraint(Sketcher.Constraint("Coincident", 12, 3, 6, 3))
sketch5.addConstraint(Sketcher.Constraint("Coincident", 13, 3, 5, 3))
sketch5.addConstraint(Sketcher.Constraint("Equal", 1, 3))
sketch5.addConstraint(Sketcher.Constraint("Equal", 3, 5))
sketch5.addConstraint(Sketcher.Constraint("Equal", 2, 6))
sketch5.addConstraint(Sketcher.Constraint("Equal", 5, 7))
sketch5.addConstraint(Sketcher.Constraint("Equal", 13, 15))
sketch5.addConstraint(Sketcher.Constraint("Symmetric", 1, 3, 5, 3, -1, 1))
sketch5.addConstraint(Sketcher.Constraint("Symmetric", 2, 3, 6, 3, -1))
sketch5.addConstraint(Sketcher.Constraint("Radius", 1, Q("6 mm")))
sketch5.addConstraint(Sketcher.Constraint("Radius", 9, Q("4 mm")))
sketch5.addConstraint(Sketcher.Constraint("Radius", 2, Q("71.25 mm")))
sketch5.addConstraint(Sketcher.Constraint("DistanceX", -1, 1, 1, 3, Q("17 mm")))
sketch5.addConstraint(Sketcher.Constraint("DistanceY", 2, 3, 6, 3, Q("47.5 mm")))
pocket2 = body.newObject("PartDesign::Pocket", "Pocket001")
pocket2.Profile = sketch5
pocket2.Length = 2

sketch6 = body.newObject("Sketcher::SketchObject", "Sketch005")
sketch6.AttachmentSupport = (doc.getObject("XY_Plane"), [""])
sketch6.MapMode = "FlatFace"
sketch6.AttachmentOffset = App.Placement(Vector(0, 0, -25), App.Rotation())
sketch6.addGeometry(Part.Circle(Vector(17, 0, 0), Vector(0, 0, 1), 18), False)
sketch6.addConstraint(Sketcher.Constraint("PointOnObject", 0, 3, -1))
sketch6.addConstraint(Sketcher.Constraint("Diameter", 0, Q("36.936558 mm")))
sketch6.addConstraint(Sketcher.Constraint("DistanceX", -1, 1, 0, 3, Q("16.756704 mm")))
pad4 = body.newObject("PartDesign::Pad", "Pad003")
pad4.Profile = sketch6
pad4.Length = 20

sketch7 = body.newObject("Sketcher::SketchObject", "Sketch006")
sketch7.AttachmentSupport = (doc.getObject("XY_Plane"), [""])
sketch7.MapMode = "FlatFace"
sketch7.AttachmentOffset = App.Placement(Vector(0, 0, -25), App.Rotation())
sketch7.addGeometry(Part.Circle(Vector(17, 0, 0), Vector(0, 0, 1), 13), False)
sketch7.addConstraint(Sketcher.Constraint("PointOnObject", 0, 3, -1))
sketch7.addConstraint(Sketcher.Constraint("Diameter", 0, Q("26.936558 mm")))
sketch7.addConstraint(Sketcher.Constraint("DistanceX", -1, 1, 0, 3, Q("16.756704 mm")))
pocket3 = body.newObject("PartDesign::Pocket", "Pocket002")
pocket3.Profile = sketch7
pocket3.Length = 16
pocket3.Reversed = True

sketch8 = body.newObject("Sketcher::SketchObject", "Sketch007")
sketch8.AttachmentSupport = (doc.getObject("XY_Plane"), [""])
sketch8.MapMode = "FlatFace"
sketch8.AttachmentOffset = App.Placement(Vector(0, 0, -25), App.Rotation())
sketch8.addGeometry(Part.Circle(Vector(-46, 0, 0), Vector(0, 0, 1), 13), False)
sketch8.addConstraint(Sketcher.Constraint("PointOnObject", 0, 3, -1))
sketch8.addConstraint(Sketcher.Constraint("Diameter", 0, Q("26.936558 mm")))
sketch8.addConstraint(Sketcher.Constraint("DistanceX", 0, 3, -1, 1, Q("45.563544 mm")))
pocket4 = body.newObject("PartDesign::Pocket", "Pocket003")
pocket4.Profile = sketch8
pocket4.Length = 25
pocket4.Reversed = True
body2 = doc.addObject("PartDesign::Body", "Body001")

sketch9 = body2.newObject("Sketcher::SketchObject", "Sketch008")
sketch9.AttachmentSupport = (doc.getObject("XY_Plane001"), [""])
sketch9.MapMode = "FlatFace"
sketch9.addGeometry(Part.ArcOfCircle(Part.Circle(Vector(0, 120, 0), Vector(0, 0, 1), 15), math.radians(0), math.radians(180)), False)
sketch9.addGeometry(Part.LineSegment(Vector(-15, 120, 0), Vector(-15, 108, 0)), False)
sketch9.addGeometry(Part.LineSegment(Vector(-15, 108, 0), Vector(-33, 90, 0)), False)
sketch9.addGeometry(Part.LineSegment(Vector(-33, 90, 0), Vector(-70, 90, 0)), False)
sketch9.addGeometry(Part.ArcOfCircle(Part.Circle(Vector(-70, 80, 0), Vector(0, 0, 1), 10), math.radians(90), math.radians(180)), False)
sketch9.addGeometry(Part.LineSegment(Vector(-80, 80, 0), Vector(-80, -80, 0)), False)
sketch9.addGeometry(Part.ArcOfCircle(Part.Circle(Vector(-70, -80, 0), Vector(0, 0, 1), 10), math.radians(180), math.radians(270)), False)
sketch9.addGeometry(Part.LineSegment(Vector(-70, -90, 0), Vector(-33, -90, 0)), False)
sketch9.addGeometry(Part.LineSegment(Vector(-33, -90, 0), Vector(-15, -108, 0)), False)
sketch9.addGeometry(Part.LineSegment(Vector(-15, -108, 0), Vector(-15, -120, 0)), False)
sketch9.addGeometry(Part.ArcOfCircle(Part.Circle(Vector(0, -120, 0), Vector(0, 0, 1), 15), math.radians(180), math.radians(360)), False)
sketch9.addGeometry(Part.LineSegment(Vector(15, -120, 0), Vector(15, -108, 0)), False)
sketch9.addGeometry(Part.LineSegment(Vector(15, -108, 0), Vector(33, -90, 0)), False)
sketch9.addGeometry(Part.LineSegment(Vector(33, -90, 0), Vector(70, -90, 0)), False)
sketch9.addGeometry(Part.ArcOfCircle(Part.Circle(Vector(70, -80, 0), Vector(0, 0, 1), 10), math.radians(-90), math.radians(0)), False)
sketch9.addGeometry(Part.LineSegment(Vector(80, -80, 0), Vector(80, 80, 0)), False)
sketch9.addGeometry(Part.ArcOfCircle(Part.Circle(Vector(70, 80, 0), Vector(0, 0, 1), 10), math.radians(0), math.radians(90)), False)
sketch9.addGeometry(Part.LineSegment(Vector(70, 90, 0), Vector(33, 90, 0)), False)
sketch9.addGeometry(Part.LineSegment(Vector(33, 90, 0), Vector(15, 108, 0)), False)
sketch9.addGeometry(Part.LineSegment(Vector(15, 108, 0), Vector(15, 120, 0)), False)
sketch9.addGeometry(Part.Circle(Vector(-60, -67.5, 0), Vector(0, 0, 1), 4), False)
sketch9.addGeometry(Part.Circle(Vector(0, -120, 0), Vector(0, 0, 1), 6), False)
sketch9.addGeometry(Part.Circle(Vector(60, -67.5, 0), Vector(0, 0, 1), 4), False)
sketch9.addGeometry(Part.Circle(Vector(-60, 67.5, 0), Vector(0, 0, 1), 4), False)
sketch9.addGeometry(Part.LineSegment(Vector(-60, -40.3, 0), Vector(-60, 40.3, 0)), False)
sketch9.addGeometry(Part.ArcOfCircle(Part.Circle(Vector(-50, 40.3, 0), Vector(0, 0, 1), 10), math.radians(128), math.radians(180)), False)
sketch9.addGeometry(Part.ArcOfCircle(Part.Circle(Vector(0, -23.8, 0), Vector(0, 0, 1), 91.2), math.radians(52), math.radians(128)), False)
sketch9.addGeometry(Part.ArcOfCircle(Part.Circle(Vector(50, 40.3, 0), Vector(0, 0, 1), 10), math.radians(0), math.radians(52)), False)
sketch9.addGeometry(Part.LineSegment(Vector(60, 40.3, 0), Vector(60, -40.3, 0)), False)
sketch9.addGeometry(Part.ArcOfCircle(Part.Circle(Vector(50, -40.3, 0), Vector(0, 0, 1), 10), math.radians(-52), math.radians(0)), False)
sketch9.addGeometry(Part.ArcOfCircle(Part.Circle(Vector(0, 23.8, 0), Vector(0, 0, 1), 91.2), math.radians(-128), math.radians(-52)), False)
sketch9.addGeometry(Part.ArcOfCircle(Part.Circle(Vector(-50, -40.3, 0), Vector(0, 0, 1), 10), math.radians(180), math.radians(232)), False)
sketch9.addGeometry(Part.Circle(Vector(0, 120, 0), Vector(0, 0, 1), 6), False)
sketch9.addGeometry(Part.Circle(Vector(60, 67.5, 0), Vector(0, 0, 1), 4), False)
sketch9.addConstraint(Sketcher.Constraint("Tangent", 0, 2, 1, 1))
sketch9.addConstraint(Sketcher.Constraint("Coincident", 1, 2, 2, 1))
sketch9.addConstraint(Sketcher.Constraint("Coincident", 2, 2, 3, 1))
sketch9.addConstraint(Sketcher.Constraint("Tangent", 3, 2, 4, 1))
sketch9.addConstraint(Sketcher.Constraint("Tangent", 4, 2, 5, 1))
sketch9.addConstraint(Sketcher.Constraint("Tangent", 5, 2, 6, 1))
sketch9.addConstraint(Sketcher.Constraint("Tangent", 6, 2, 7, 1))
sketch9.addConstraint(Sketcher.Constraint("Coincident", 7, 2, 8, 1))
sketch9.addConstraint(Sketcher.Constraint("Coincident", 8, 2, 9, 1))
sketch9.addConstraint(Sketcher.Constraint("Tangent", 9, 2, 10, 1))
sketch9.addConstraint(Sketcher.Constraint("Tangent", 10, 2, 11, 1))
sketch9.addConstraint(Sketcher.Constraint("Coincident", 11, 2, 12, 1))
sketch9.addConstraint(Sketcher.Constraint("Coincident", 12, 2, 13, 1))
sketch9.addConstraint(Sketcher.Constraint("Tangent", 13, 2, 14, 1))
sketch9.addConstraint(Sketcher.Constraint("Tangent", 14, 2, 15, 1))
sketch9.addConstraint(Sketcher.Constraint("Tangent", 15, 2, 16, 1))
sketch9.addConstraint(Sketcher.Constraint("Tangent", 16, 2, 17, 1))
sketch9.addConstraint(Sketcher.Constraint("Coincident", 17, 2, 18, 1))
sketch9.addConstraint(Sketcher.Constraint("Coincident", 18, 2, 19, 1))
sketch9.addConstraint(Sketcher.Constraint("Tangent", 19, 2, 0, 1))
sketch9.addConstraint(Sketcher.Constraint("Tangent", 24, 2, 25, 2))
sketch9.addConstraint(Sketcher.Constraint("Tangent", 25, 1, 26, 2))
sketch9.addConstraint(Sketcher.Constraint("Tangent", 26, 1, 27, 2))
sketch9.addConstraint(Sketcher.Constraint("Tangent", 27, 1, 28, 1))
sketch9.addConstraint(Sketcher.Constraint("Tangent", 28, 2, 29, 2))
sketch9.addConstraint(Sketcher.Constraint("Tangent", 29, 1, 30, 2))
sketch9.addConstraint(Sketcher.Constraint("Tangent", 30, 1, 31, 2))
sketch9.addConstraint(Sketcher.Constraint("Tangent", 31, 1, 24, 1))
sketch9.addConstraint(Sketcher.Constraint("Vertical", 1))
sketch9.addConstraint(Sketcher.Constraint("Horizontal", 3))
sketch9.addConstraint(Sketcher.Constraint("Vertical", 5))
sketch9.addConstraint(Sketcher.Constraint("Horizontal", 7))
sketch9.addConstraint(Sketcher.Constraint("Vertical", 9))
sketch9.addConstraint(Sketcher.Constraint("Vertical", 11))
sketch9.addConstraint(Sketcher.Constraint("Horizontal", 13))
sketch9.addConstraint(Sketcher.Constraint("Vertical", 15))
sketch9.addConstraint(Sketcher.Constraint("Horizontal", 17))
sketch9.addConstraint(Sketcher.Constraint("Vertical", 19))
sketch9.addConstraint(Sketcher.Constraint("Vertical", 24))
sketch9.addConstraint(Sketcher.Constraint("Vertical", 28))
sketch9.addConstraint(Sketcher.Constraint("Coincident", 21, 3, 10, 3))
sketch9.addConstraint(Sketcher.Constraint("Coincident", 32, 3, 0, 3))
sketch9.addConstraint(Sketcher.Constraint("Equal", 4, 6))
sketch9.addConstraint(Sketcher.Constraint("Equal", 0, 10))
sketch9.addConstraint(Sketcher.Constraint("Equal", 6, 14))
sketch9.addConstraint(Sketcher.Constraint("Equal", 14, 16))
sketch9.addConstraint(Sketcher.Constraint("Equal", 20, 22))
sketch9.addConstraint(Sketcher.Constraint("Equal", 22, 23))
sketch9.addConstraint(Sketcher.Constraint("Equal", 16, 25))
sketch9.addConstraint(Sketcher.Constraint("Equal", 25, 27))
sketch9.addConstraint(Sketcher.Constraint("Equal", 27, 29))
sketch9.addConstraint(Sketcher.Constraint("Equal", 26, 30))
sketch9.addConstraint(Sketcher.Constraint("Equal", 29, 31))
sketch9.addConstraint(Sketcher.Constraint("Equal", 21, 32))
sketch9.addConstraint(Sketcher.Constraint("Equal", 23, 33))
sketch9.addConstraint(Sketcher.Constraint("Symmetric", 0, 3, 10, 3, -1, 1))
sketch9.addConstraint(Sketcher.Constraint("Symmetric", 4, 3, 14, 3, -1, 1))
sketch9.addConstraint(Sketcher.Constraint("Symmetric", 22, 3, 23, 3, -1, 1))
sketch9.addConstraint(Sketcher.Constraint("Symmetric", 25, 3, 29, 3, -1, 1))
sketch9.addConstraint(Sketcher.Constraint("Symmetric", 20, 3, 33, 3, -1, 1))
sketch9.addConstraint(Sketcher.Constraint("Symmetric", 7, 2, 17, 2, -1, 1))
sketch9.addConstraint(Sketcher.Constraint("Symmetric", 20, 3, 22, 3, -2))
sketch9.addConstraint(Sketcher.Constraint("Symmetric", 8, 2, 11, 2, -2))
sketch9.addConstraint(Sketcher.Constraint("Symmetric", 7, 2, 12, 2, -2))
sketch9.addConstraint(Sketcher.Constraint("Symmetric", 26, 3, 30, 3, -1))
sketch9.addConstraint(Sketcher.Constraint("Perpendicular", 2, 8))
sketch9.addConstraint(Sketcher.Constraint("Perpendicular", 8, 12))
sketch9.addConstraint(Sketcher.Constraint("Perpendicular", 12, 18))
sketch9.addConstraint(Sketcher.Constraint("Horizontal", 1, 2, 18, 2))
sketch9.addConstraint(Sketcher.Constraint("Vertical", 23, 3, 24, 2))
sketch9.addConstraint(Sketcher.Constraint("Diameter", 20, Q("8 mm")))
sketch9.addConstraint(Sketcher.Constraint("Diameter", 21, Q("12 mm")))
sketch9.addConstraint(Sketcher.Constraint("Radius", 0, Q("15 mm")))
sketch9.addConstraint(Sketcher.Constraint("Radius", 4, Q("10 mm")))
sketch9.addConstraint(Sketcher.Constraint("DistanceX", 3, 2, 3, 1, Q("37 mm")))
sketch9.addConstraint(Sketcher.Constraint("DistanceY", 1, 2, 1, 1, Q("12 mm")))
sketch9.addConstraint(Sketcher.Constraint("DistanceY", 5, 2, 5, 1, Q("160 mm")))
sketch9.addConstraint(Sketcher.Constraint("Radius", 26, Q("91.25 mm")))
sketch9.addConstraint(Sketcher.Constraint("DistanceY", -1, 1, 0, 3, Q("120 mm")))
sketch9.addConstraint(Sketcher.Constraint("DistanceX", 20, 3, -1, 1, Q("60 mm")))
sketch9.addConstraint(Sketcher.Constraint("DistanceY", 20, 3, 23, 3, Q("135 mm")))
sketch9.addConstraint(Sketcher.Constraint("DistanceY", 26, 3, 30, 3, Q("47.5 mm")))
pad5 = body2.newObject("PartDesign::Pad", "Pad004")
pad5.Profile = sketch9
pad5.Length = 3

doc.recompute()
